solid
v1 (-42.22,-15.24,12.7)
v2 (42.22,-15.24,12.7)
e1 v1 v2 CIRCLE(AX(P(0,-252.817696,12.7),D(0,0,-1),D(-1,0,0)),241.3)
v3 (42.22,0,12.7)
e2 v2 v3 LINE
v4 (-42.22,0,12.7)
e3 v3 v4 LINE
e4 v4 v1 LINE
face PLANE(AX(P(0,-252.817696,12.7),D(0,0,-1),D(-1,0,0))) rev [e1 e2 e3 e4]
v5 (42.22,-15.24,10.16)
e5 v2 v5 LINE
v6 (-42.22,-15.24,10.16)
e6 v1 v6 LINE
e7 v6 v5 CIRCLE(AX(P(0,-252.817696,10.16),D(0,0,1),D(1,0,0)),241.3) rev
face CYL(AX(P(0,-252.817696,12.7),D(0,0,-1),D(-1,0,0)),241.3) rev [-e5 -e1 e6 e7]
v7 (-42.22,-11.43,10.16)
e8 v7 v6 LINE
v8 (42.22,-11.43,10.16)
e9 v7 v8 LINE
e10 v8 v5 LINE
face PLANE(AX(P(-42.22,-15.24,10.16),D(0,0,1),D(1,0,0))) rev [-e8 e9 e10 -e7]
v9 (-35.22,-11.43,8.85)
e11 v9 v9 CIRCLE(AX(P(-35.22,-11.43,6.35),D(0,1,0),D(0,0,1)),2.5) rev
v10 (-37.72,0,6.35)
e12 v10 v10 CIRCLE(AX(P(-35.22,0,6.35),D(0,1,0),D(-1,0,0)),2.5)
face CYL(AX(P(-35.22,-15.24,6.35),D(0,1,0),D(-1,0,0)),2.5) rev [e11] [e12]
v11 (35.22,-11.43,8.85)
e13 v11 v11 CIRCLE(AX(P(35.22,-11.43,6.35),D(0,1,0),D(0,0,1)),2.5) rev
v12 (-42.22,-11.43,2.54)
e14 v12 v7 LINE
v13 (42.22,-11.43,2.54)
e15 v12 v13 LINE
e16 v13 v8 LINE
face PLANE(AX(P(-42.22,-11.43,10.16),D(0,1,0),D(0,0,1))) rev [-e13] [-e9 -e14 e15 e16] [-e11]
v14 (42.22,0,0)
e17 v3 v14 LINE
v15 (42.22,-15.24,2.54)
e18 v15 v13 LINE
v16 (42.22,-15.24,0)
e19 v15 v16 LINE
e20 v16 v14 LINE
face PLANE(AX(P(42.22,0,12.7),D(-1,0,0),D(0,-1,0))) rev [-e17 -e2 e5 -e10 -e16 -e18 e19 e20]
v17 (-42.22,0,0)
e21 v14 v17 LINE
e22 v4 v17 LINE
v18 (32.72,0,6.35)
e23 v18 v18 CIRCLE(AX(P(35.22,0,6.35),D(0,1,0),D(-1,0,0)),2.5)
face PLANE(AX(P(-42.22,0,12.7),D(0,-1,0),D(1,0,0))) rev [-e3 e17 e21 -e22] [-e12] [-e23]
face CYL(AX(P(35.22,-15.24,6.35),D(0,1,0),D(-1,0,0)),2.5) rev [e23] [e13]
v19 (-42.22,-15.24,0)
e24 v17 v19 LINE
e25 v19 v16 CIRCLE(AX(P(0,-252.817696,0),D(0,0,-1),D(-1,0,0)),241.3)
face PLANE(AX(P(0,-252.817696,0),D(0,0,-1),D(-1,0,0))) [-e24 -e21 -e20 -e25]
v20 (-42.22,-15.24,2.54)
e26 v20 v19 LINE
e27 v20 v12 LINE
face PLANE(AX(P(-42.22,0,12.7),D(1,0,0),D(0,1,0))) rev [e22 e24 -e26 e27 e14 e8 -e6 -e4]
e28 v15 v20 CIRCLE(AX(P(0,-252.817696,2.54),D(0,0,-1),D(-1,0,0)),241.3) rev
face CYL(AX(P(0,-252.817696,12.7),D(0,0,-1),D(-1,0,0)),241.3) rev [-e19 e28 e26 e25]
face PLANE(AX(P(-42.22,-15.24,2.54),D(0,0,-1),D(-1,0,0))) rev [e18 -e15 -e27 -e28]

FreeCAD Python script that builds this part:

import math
import FreeCAD as App
import Part
import Sketcher
Q = App.Units.Quantity


def add_polygon(sketch, points):
    """Adds a closed chain of lines whose ends are joined by coincident constraints."""
    first, n = sketch.GeometryCount, len(points)
    for a, b in zip(points, points[1:] + points[:1]):
        sketch.addGeometry(Part.LineSegment(App.Vector(*a, 0), App.Vector(*b, 0)), False)
    for i in range(n):
        sketch.addConstraint(Sketcher.Constraint("Coincident", first + i, 2, first + (i + 1) % n, 1))

doc = App.newDocument("Part")
body = doc.addObject("PartDesign::Body", "Body")

# Sketch on XY plane
sketch1 = body.newObject("Sketcher::SketchObject", "Sketch")
sketch1.AttachmentSupport = (doc.getObject("XY_Plane"), [""])
sketch1.MapMode = "FlatFace"
sketch1.addGeometry([
    Part.LineSegment(App.Vector(42.22, 0, 0), App.Vector(-42.22, 0, 0)),
    Part.LineSegment(App.Vector(-42.22, 0, 0), App.Vector(-42.22, -15.24, 0)),
    Part.ArcOfCircle(Part.Circle(App.Vector(0, -252.817696, 0), App.Vector(0, 0, 1), 241.3), math.radians(79.923151), math.radians(100.076849)),
    Part.LineSegment(App.Vector(42.22, -15.24, 0), App.Vector(42.22, 0, 0)),
], False)
sketch1.addConstraint([
    Sketcher.Constraint("Coincident", 0, 2, 1, 1),
    Sketcher.Constraint("Coincident", 1, 2, 2, 2),
    Sketcher.Constraint("Coincident", 2, 1, 3, 1),
    Sketcher.Constraint("Coincident", 3, 2, 0, 1),
    Sketcher.Constraint("Horizontal", 0),
    Sketcher.Constraint("Vertical", 1),
    Sketcher.Constraint("Vertical", 3),
    Sketcher.Constraint("Symmetric", 0, 2, 3, 2, -1, 1),
    Sketcher.Constraint("PointOnObject", 2, 3, -2),
    Sketcher.Constraint("Radius", 2, Q("9.5 in")),
    Sketcher.Constraint("DistanceY", 1, 2, 1, 1, Q("0.6 in")),
    Sketcher.Constraint("DistanceX", 0, 2, 0, 1, 84.44),
])
pad1 = body.newObject("PartDesign::Pad", "Pad")
pad1.Profile = sketch1
pad1.Length = Q("0.5 in")

# Sketch on XZ plane
sketch2 = body.newObject("Sketcher::SketchObject", "Sketch001")
sketch2.AttachmentSupport = (doc.getObject("XZ_Plane"), [""])
sketch2.MapMode = "FlatFace"
sketch2.addGeometry([
    Part.Circle(App.Vector(-35.22, 6.35, 0), App.Vector(0, 0, 1), 2.5),
    Part.Circle(App.Vector(35.22, 6.35, 0), App.Vector(0, 0, 1), 2.5),
], False)
sketch2.addConstraint([
    Sketcher.Constraint("Equal", 0, 1),
    Sketcher.Constraint("Symmetric", 0, 3, 1, 3, -2),
    Sketcher.Constraint("Diameter", 0, 5.0),
    Sketcher.Constraint("DistanceY", -1, 1, 0, 3, Q("0.25 in")),
    Sketcher.Constraint("DistanceX", 0, 3, -1, 1, 35.22),
])
pocket1 = body.newObject("PartDesign::Pocket", "Pocket")
pocket1.Profile = sketch2
pocket1.Type = "ThroughAll"
pocket1.Reversed = True

# Sketch on YZ plane
sketch3 = body.newObject("Sketcher::SketchObject", "Sketch002")
sketch3.AttachmentSupport = (doc.getObject("YZ_Plane"), [""])
sketch3.MapMode = "FlatFace"
sketch3.AttachmentOffset = App.Placement(App.Vector(0, 0, 42.22), App.Rotation())
add_polygon(sketch3, [(-11.43, 10.16), (-15.24, 10.16), (-15.24, 2.54), (-11.43, 2.54)])  # lines 0-3
sketch3.addConstraint([
    Sketcher.Constraint("Horizontal", 0),
    Sketcher.Constraint("Vertical", 1),
    Sketcher.Constraint("Horizontal", 2),
    Sketcher.Constraint("Vertical", 3),
    Sketcher.Constraint("DistanceY", 1, 2, 1, 1, Q("0.3 in")),
    Sketcher.Constraint("DistanceX", 0, 2, 0, 1, Q("0.15 in")),
    Sketcher.Constraint("DistanceX", 0, 2, -1, 1, Q("0.6 in")),
    Sketcher.Constraint("DistanceY", -1, 1, 0, 2, Q("0.4 in")),
])
pocket2 = body.newObject("PartDesign::Pocket", "Pocket001")
pocket2.Profile = sketch3
pocket2.Type = "ThroughAll"

doc.recompute()
